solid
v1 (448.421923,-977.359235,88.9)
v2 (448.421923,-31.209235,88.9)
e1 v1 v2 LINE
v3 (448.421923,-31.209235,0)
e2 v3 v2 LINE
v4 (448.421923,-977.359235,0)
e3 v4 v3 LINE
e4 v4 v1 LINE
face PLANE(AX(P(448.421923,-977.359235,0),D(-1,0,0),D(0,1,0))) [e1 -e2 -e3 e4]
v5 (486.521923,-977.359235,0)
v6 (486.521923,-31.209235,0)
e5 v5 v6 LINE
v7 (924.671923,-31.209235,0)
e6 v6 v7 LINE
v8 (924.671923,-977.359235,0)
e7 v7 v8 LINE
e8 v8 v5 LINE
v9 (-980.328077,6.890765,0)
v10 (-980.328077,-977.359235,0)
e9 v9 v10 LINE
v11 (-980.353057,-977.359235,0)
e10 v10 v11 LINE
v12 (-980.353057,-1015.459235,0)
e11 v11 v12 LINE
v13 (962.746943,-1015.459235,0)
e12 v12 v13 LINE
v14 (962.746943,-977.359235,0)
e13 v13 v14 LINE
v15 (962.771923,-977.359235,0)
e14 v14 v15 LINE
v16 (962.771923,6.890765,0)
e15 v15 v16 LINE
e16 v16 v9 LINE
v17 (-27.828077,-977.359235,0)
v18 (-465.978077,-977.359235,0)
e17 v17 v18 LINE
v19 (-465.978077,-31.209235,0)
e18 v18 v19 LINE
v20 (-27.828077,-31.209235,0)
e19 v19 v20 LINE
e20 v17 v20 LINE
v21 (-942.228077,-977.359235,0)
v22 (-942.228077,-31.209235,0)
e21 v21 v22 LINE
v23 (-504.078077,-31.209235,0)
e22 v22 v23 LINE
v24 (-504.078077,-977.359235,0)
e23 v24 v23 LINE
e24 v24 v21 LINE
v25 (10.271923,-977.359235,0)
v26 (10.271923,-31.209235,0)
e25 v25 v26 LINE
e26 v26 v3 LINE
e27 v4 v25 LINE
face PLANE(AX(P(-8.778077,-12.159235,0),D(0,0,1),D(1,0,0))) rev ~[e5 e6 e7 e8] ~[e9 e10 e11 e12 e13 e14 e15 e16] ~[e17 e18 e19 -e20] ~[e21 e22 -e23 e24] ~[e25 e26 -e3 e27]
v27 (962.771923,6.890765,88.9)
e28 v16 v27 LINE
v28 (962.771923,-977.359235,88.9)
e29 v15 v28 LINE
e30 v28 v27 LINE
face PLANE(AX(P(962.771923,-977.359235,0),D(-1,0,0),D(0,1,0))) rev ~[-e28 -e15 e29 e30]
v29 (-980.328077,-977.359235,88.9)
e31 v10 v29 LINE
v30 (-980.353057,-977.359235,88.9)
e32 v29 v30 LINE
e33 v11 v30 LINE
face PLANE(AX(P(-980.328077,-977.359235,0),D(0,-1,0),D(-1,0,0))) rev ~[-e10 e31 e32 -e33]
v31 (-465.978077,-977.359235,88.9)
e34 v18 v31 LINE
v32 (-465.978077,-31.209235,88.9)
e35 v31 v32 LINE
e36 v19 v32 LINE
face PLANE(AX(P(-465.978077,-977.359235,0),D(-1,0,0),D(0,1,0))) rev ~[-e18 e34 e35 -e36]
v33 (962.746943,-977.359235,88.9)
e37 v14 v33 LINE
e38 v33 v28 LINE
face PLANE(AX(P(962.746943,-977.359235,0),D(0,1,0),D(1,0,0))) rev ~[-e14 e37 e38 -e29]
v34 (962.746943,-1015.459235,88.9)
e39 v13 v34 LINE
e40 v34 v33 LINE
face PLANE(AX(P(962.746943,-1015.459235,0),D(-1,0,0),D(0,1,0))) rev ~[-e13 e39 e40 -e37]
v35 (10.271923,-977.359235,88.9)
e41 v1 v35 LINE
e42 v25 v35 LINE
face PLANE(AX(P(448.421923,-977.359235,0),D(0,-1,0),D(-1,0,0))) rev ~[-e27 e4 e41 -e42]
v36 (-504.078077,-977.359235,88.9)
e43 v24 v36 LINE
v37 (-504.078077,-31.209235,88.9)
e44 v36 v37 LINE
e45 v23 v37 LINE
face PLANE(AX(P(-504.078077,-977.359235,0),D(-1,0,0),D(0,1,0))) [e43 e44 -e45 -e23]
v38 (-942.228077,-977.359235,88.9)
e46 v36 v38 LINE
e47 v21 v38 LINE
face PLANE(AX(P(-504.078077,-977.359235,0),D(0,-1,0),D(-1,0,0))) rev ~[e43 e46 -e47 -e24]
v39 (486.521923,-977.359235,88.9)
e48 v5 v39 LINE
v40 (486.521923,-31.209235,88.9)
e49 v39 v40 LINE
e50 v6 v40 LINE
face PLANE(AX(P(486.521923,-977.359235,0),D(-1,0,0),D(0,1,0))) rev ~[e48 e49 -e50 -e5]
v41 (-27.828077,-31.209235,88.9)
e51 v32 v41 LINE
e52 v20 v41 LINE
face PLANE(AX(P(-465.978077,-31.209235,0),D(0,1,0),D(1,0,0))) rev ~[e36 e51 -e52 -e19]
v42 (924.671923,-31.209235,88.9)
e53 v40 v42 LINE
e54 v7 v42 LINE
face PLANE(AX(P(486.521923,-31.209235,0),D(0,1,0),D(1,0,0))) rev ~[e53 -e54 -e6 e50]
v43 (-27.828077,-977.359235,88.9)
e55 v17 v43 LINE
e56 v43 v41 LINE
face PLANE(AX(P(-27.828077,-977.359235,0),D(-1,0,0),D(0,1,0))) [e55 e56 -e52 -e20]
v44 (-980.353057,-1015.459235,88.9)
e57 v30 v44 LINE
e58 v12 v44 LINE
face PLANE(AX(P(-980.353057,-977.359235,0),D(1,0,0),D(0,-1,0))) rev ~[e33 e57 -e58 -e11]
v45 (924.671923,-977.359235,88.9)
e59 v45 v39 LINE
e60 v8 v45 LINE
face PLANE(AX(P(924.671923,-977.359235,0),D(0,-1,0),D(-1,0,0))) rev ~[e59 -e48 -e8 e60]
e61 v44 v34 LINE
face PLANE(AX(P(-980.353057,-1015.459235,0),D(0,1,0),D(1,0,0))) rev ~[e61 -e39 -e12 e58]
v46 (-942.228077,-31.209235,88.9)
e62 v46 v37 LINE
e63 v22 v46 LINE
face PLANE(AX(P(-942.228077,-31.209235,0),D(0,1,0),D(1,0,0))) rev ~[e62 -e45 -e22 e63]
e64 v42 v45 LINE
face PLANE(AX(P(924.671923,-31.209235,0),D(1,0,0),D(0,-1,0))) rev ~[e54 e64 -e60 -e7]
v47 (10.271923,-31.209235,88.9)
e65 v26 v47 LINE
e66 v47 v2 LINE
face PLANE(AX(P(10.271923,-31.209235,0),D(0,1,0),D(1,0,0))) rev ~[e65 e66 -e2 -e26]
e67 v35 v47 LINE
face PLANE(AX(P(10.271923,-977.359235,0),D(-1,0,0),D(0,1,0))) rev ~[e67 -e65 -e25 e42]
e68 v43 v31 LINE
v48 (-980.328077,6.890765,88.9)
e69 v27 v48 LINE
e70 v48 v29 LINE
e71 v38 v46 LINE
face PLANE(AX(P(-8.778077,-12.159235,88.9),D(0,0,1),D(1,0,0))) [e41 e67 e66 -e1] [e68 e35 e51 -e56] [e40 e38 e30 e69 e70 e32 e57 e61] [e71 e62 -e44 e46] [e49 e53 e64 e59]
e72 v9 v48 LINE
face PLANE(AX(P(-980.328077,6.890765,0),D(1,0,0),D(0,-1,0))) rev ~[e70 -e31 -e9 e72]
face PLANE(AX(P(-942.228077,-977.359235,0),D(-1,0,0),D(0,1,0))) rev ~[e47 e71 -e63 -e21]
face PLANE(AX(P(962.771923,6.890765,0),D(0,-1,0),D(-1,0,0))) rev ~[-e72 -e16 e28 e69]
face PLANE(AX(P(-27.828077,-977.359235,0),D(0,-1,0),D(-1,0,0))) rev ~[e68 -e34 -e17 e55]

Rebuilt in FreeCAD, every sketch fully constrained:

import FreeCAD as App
import Part
import Sketcher
Q = App.Units.Quantity


def add_polygon(sketch, points):
    """Adds a closed chain of lines whose ends are joined by coincident constraints."""
    first, n = sketch.GeometryCount, len(points)
    for a, b in zip(points, points[1:] + points[:1]):
        sketch.addGeometry(Part.LineSegment(App.Vector(*a, 0), App.Vector(*b, 0)), False)
    for i in range(n):
        sketch.addConstraint(Sketcher.Constraint("Coincident", first + i, 2, first + (i + 1) % n, 1))

doc = App.newDocument("Part")
params = doc.addObject("Spreadsheet::Sheet", "Params")
for row, (alias, value) in enumerate([
    ("sketch1_width", "76.5 in"),
    ("sketch1_height", "1.5 in"),
    ("sketch1_width2", "17.25 in"),
    ("sketch1_height2", "38.75 in"),
    ("sketch1_height3", "37.25 in"),
    ("pad1_length", "3.5 in"),
], start=1):
    params.set(f"A{row}", alias)
    params.set(f"B{row}", "=" + value)
    params.setAlias(f"B{row}", alias)

body = doc.addObject("PartDesign::Body", "Body")

sketch1 = doc.addObject("Sketcher::SketchObject", "Sketch")
body.addObject(sketch1)
sketch1.AttachmentSupport = (doc.XY_Plane, [""])
sketch1.MapMode = "FlatFace"
add_polygon(sketch1, [(962.771923, 6.890765), (-980.328077, 6.890765), (-980.328077, -977.359235), (-980.353057, -977.359235), (-980.353057, -1015.459235), (962.746943, -1015.459235), (962.746943, -977.359235), (962.771923, -977.359235)])
add_polygon(sketch1, [(-942.228077, -977.359235), (-942.228077, -31.209235), (-504.078077, -31.209235), (-504.078077, -977.359235)])
add_polygon(sketch1, [(-465.978077, -31.209235), (-27.828077, -31.209235), (-27.828077, -977.359235), (-465.978077, -977.359235)])
add_polygon(sketch1, [(10.271923, -31.209235), (448.421923, -31.209235), (448.421923, -977.359235), (10.271923, -977.359235)])
add_polygon(sketch1, [(486.521923, -31.209235), (924.671923, -31.209235), (924.671923, -977.359235), (486.521923, -977.359235)])
sketch1.addConstraint([
    Sketcher.Constraint("Horizontal", 0),
    Sketcher.Constraint("Vertical", 1),
    Sketcher.Constraint("Horizontal", 2),
    Sketcher.Constraint("Vertical", 3),
    Sketcher.Constraint("Horizontal", 4),
    Sketcher.Constraint("Vertical", 5),
    Sketcher.Constraint("Horizontal", 6),
    Sketcher.Constraint("Vertical", 7),
    Sketcher.Constraint("Vertical", 8),
    Sketcher.Constraint("Horizontal", 9),
    Sketcher.Constraint("Vertical", 10),
    Sketcher.Constraint("Horizontal", 11),
    Sketcher.Constraint("Horizontal", 12),
    Sketcher.Constraint("Vertical", 13),
    Sketcher.Constraint("Horizontal", 14),
    Sketcher.Constraint("Vertical", 15),
    Sketcher.Constraint("Horizontal", 16),
    Sketcher.Constraint("Vertical", 17),
    Sketcher.Constraint("Horizontal", 18),
    Sketcher.Constraint("Vertical", 19),
    Sketcher.Constraint("Horizontal", 20),
    Sketcher.Constraint("Vertical", 21),
    Sketcher.Constraint("Horizontal", 22),
    Sketcher.Constraint("Vertical", 23),
    Sketcher.Constraint("Horizontal", 2, 2, 5, 2),
    Sketcher.Constraint("Horizontal", 6, 2, 10, 2),
    Sketcher.Constraint("Horizontal", 9, 2, 12, 2),
    Sketcher.Constraint("Horizontal", 11, 2, 13, 2),
    Sketcher.Constraint("Horizontal", 15, 2, 16, 2),
    Sketcher.Constraint("Horizontal", 14, 2, 17, 2),
    Sketcher.Constraint("Horizontal", 19, 2, 20, 2),
    Sketcher.Constraint("Horizontal", 18, 2, 21, 2),
    Sketcher.Constraint("Equal", 0, 4),
    Sketcher.Constraint("Equal", 11, 12),
    Sketcher.Constraint("Equal", 14, 16),
    Sketcher.Constraint("Equal", 18, 20),
    Sketcher.Constraint("DistanceX", 0, 2, 0, 1, Q("76.5 in")),
    Sketcher.Constraint("DistanceY", 3, 2, 3, 1, Q("1.5 in")),
    Sketcher.Constraint("DistanceX", 8, 2, 7, 2, Q("75 in")),
    Sketcher.Constraint("DistanceX", 8, 2, 12, 2, Q("36 in")),
    Sketcher.Constraint("DistanceX", 15, 2, 16, 2, Q("36 in")),
    Sketcher.Constraint("DistanceX", 19, 2, 20, 2, Q("36 in")),
    Sketcher.Constraint("DistanceX", 9, 1, 9, 2, Q("17.25 in")),
    Sketcher.Constraint("DistanceY", 1, 2, 1, 1, Q("38.75 in")),
    Sketcher.Constraint("DistanceY", 8, 1, 8, 2, Q("37.25 in")),
    Sketcher.Constraint("DistanceX", 2, 2, 2, 1, 0.02498),
    Sketcher.Constraint("DistanceX", 0, 2, -1, 1, 980.328077),
    Sketcher.Constraint("DistanceY", -1, 1, 0, 2, 6.890765),
])
sketch1.setExpression("Constraints[60]", "Params.sketch1_width")
sketch1.setExpression("Constraints[61]", "Params.sketch1_height")
sketch1.setExpression("Constraints[66]", "Params.sketch1_width2")
sketch1.setExpression("Constraints[67]", "Params.sketch1_height2")
sketch1.setExpression("Constraints[68]", "Params.sketch1_height3")
pad1 = doc.addObject("PartDesign::Pad", "Pad")
body.addObject(pad1)
pad1.Profile = sketch1
pad1.setExpression("Length", "Params.pad1_length")

doc.recompute()
